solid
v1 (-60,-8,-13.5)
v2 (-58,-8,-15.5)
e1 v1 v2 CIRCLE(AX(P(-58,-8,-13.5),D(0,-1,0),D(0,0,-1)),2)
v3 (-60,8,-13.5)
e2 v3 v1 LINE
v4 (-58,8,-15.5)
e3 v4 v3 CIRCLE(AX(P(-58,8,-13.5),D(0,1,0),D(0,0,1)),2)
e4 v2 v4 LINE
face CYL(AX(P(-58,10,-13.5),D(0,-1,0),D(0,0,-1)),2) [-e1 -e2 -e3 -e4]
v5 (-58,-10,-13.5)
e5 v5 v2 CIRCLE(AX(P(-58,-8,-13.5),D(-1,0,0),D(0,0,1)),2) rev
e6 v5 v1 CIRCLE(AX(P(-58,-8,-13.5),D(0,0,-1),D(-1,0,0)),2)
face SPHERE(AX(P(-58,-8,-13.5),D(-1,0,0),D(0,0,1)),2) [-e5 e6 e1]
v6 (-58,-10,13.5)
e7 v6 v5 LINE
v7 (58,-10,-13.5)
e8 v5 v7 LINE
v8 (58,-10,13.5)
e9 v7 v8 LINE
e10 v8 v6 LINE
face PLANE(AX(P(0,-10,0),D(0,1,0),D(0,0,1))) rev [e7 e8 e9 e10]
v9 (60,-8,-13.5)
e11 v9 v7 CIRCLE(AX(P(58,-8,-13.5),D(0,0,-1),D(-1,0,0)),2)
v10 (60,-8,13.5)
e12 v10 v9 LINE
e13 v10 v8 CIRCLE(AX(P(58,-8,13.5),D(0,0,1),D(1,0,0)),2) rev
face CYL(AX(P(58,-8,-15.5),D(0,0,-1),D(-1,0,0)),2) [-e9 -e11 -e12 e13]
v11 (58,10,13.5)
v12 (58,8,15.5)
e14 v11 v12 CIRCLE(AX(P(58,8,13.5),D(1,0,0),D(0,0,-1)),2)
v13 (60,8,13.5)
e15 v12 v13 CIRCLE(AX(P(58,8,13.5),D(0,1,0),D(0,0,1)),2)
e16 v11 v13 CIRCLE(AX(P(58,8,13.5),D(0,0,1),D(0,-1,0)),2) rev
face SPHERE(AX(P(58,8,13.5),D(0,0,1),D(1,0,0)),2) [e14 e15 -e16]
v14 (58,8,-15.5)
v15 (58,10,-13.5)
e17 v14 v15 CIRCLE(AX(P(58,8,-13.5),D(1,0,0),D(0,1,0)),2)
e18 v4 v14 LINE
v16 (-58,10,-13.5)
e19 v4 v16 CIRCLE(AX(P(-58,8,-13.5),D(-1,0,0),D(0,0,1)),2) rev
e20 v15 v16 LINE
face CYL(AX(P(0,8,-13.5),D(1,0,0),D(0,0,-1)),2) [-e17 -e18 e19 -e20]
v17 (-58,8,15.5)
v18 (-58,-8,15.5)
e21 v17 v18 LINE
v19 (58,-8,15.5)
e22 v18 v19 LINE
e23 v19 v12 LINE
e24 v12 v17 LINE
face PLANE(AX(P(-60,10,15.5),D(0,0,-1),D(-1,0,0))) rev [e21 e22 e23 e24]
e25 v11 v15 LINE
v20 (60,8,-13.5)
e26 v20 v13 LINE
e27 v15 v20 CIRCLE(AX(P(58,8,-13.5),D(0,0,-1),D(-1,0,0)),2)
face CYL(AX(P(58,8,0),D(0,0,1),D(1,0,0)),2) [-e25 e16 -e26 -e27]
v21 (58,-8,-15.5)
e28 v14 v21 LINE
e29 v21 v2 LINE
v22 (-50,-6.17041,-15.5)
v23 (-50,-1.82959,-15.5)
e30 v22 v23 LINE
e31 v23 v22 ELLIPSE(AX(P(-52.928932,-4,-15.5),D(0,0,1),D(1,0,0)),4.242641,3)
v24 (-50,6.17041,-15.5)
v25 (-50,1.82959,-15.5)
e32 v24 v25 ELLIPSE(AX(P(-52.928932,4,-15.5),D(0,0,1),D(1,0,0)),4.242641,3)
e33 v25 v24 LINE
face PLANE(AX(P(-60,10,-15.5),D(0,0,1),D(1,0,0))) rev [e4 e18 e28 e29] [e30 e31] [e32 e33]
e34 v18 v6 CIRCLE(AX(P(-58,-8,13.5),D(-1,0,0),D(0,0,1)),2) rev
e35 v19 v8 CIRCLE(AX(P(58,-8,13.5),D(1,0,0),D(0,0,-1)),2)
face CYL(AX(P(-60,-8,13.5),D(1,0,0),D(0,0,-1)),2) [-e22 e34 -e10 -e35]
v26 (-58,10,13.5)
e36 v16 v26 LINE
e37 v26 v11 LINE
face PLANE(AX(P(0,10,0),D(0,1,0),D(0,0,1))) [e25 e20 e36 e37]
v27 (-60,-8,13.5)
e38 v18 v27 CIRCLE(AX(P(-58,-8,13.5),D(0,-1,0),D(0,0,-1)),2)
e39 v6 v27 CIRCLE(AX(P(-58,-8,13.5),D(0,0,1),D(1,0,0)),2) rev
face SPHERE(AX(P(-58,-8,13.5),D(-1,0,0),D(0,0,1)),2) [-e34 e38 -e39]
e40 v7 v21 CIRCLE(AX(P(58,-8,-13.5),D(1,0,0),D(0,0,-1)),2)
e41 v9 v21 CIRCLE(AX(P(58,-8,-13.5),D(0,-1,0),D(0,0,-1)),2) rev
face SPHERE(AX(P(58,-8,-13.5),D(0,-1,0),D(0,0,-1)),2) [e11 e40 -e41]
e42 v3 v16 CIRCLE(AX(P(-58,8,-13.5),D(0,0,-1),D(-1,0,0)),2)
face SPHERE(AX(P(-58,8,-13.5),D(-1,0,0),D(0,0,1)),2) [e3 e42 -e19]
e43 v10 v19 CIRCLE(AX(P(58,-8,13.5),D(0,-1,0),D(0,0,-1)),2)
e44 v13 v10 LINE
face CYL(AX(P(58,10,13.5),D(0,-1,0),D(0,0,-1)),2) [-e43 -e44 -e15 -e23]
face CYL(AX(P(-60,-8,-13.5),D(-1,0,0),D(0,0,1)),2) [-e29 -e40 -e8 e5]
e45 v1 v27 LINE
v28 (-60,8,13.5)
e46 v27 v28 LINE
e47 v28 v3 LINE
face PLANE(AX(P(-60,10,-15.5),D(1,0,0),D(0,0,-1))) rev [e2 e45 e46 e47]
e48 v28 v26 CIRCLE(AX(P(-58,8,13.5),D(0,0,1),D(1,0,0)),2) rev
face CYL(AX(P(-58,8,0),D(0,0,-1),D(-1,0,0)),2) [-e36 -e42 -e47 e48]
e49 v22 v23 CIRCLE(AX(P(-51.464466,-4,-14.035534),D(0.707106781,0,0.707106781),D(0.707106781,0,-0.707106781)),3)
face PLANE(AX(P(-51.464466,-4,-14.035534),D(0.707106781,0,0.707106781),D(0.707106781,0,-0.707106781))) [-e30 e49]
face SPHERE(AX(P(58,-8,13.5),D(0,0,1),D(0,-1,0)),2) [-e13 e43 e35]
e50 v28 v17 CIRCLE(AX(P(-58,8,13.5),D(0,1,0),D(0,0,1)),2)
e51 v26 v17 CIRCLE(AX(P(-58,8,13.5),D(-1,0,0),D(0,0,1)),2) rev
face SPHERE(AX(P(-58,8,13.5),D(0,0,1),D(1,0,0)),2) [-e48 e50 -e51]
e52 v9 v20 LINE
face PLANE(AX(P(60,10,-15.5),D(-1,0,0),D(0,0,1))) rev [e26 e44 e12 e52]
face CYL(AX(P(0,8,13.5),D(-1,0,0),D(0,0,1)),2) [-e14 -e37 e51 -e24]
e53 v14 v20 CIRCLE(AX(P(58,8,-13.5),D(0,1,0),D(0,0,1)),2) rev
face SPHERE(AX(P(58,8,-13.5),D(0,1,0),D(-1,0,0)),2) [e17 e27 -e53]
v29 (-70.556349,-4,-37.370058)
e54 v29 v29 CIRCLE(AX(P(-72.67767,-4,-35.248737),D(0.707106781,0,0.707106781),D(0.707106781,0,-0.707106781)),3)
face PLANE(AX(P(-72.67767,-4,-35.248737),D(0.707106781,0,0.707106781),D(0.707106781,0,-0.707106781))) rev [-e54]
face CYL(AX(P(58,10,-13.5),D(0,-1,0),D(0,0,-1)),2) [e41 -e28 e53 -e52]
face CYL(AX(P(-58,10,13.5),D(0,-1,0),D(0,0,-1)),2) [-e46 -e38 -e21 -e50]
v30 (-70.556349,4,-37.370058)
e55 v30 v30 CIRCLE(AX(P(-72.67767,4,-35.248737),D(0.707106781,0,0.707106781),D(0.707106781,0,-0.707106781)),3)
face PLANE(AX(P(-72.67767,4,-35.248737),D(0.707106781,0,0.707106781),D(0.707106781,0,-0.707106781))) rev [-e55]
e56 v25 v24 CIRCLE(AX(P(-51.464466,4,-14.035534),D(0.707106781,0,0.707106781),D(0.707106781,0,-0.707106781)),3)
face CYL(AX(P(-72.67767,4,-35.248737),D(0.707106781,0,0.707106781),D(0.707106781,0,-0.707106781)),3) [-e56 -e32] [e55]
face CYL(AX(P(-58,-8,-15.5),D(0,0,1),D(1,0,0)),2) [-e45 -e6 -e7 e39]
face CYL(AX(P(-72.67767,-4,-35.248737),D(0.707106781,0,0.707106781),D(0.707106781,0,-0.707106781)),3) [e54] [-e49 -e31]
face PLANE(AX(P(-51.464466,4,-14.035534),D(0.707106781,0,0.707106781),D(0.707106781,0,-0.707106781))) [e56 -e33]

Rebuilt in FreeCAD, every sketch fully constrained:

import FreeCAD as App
import Part
import Sketcher

V = App.Vector
Q = App.Units.Quantity


def edges_at(feature, points):
    """Names of the edges that pass closest to the given points."""
    edges = feature.Shape.Edges
    near = lambda p: min(range(len(edges)), key=lambda i: edges[i].distToShape(Part.Vertex(*p))[0])
    return sorted({f"Edge{near(p) + 1}" for p in points})

doc = App.newDocument("Part")
body = doc.addObject("PartDesign::Body", "Body")

# Sketch on XZ plane
sketch1 = body.newObject("Sketcher::SketchObject", "Sketch")
sketch1.AttachmentSupport = (doc.getObject("XZ_Plane"), [""])
sketch1.MapMode = "FlatFace"
sketch1.addGeometry([
    Part.LineSegment(V(-60, -16, 0), V(-60, 16, 0)),
    Part.LineSegment(V(-60, 16, 0), V(60, 16, 0)),
    Part.LineSegment(V(60, 16, 0), V(60, -16, 0)),
    Part.LineSegment(V(60, -16, 0), V(-60, -16, 0)),
], False)
sketch1.addConstraint([
    Sketcher.Constraint("Coincident", 0, 2, 1, 1),
    Sketcher.Constraint("Coincident", 1, 2, 2, 1),
    Sketcher.Constraint("Coincident", 2, 2, 3, 1),
    Sketcher.Constraint("Coincident", 3, 2, 0, 1),
    Sketcher.Constraint("Vertical", 0),
    Sketcher.Constraint("Horizontal", 1),
    Sketcher.Constraint("Vertical", 2),
    Sketcher.Constraint("Horizontal", 3),
    Sketcher.Constraint("Symmetric", 0, 2, 2, 2, -1, 1),
    Sketcher.Constraint("DistanceX", 1, 1, 1, 2, Q("120 mm")),
    Sketcher.Constraint("DistanceY", 0, 1, 0, 2, Q("31 mm")),
])
pad1 = body.newObject("PartDesign::Pad", "Pad")
pad1.Profile = sketch1
pad1.Length = 20
pad1.Midplane = True

# Sketch on an angled plane
sketch2 = body.newObject("Sketcher::SketchObject", "Sketch001")
sketch2.Placement = App.Placement(V(-32.75, 0, -32.75), App.Rotation(V(0.707106781, 0, -0.707106781), V(0, 0.999999999, 0), V(0.707106781, 0, 0.707106781), "ZXY"))
sketch2.addGeometry([
    Part.Circle(V(-26.5, 4, 0), V(0, 0, 1), 3),
    Part.Circle(V(-26.5, -4, 0), V(0, 0, 1), 3),
], False)
sketch2.addConstraint([
    Sketcher.Constraint("Equal", 0, 1),
    Sketcher.Constraint("Symmetric", 0, 3, 1, 3, -1),
    Sketcher.Constraint("Diameter", 0, Q("6 mm")),
    Sketcher.Constraint("DistanceY", -1, 1, 0, 3, Q("4 mm")),
    Sketcher.Constraint("DistanceX", 0, 3, -1, 1, Q("26.466252 mm")),
])
pad2 = body.newObject("PartDesign::Pad", "Pad001")
pad2.Profile = sketch2
pad2.Length = 30
pad2.Reversed = True
doc.recompute()

fillet = body.newObject("PartDesign::Fillet", "Fillet")
fillet.Base = (pad2, edges_at(pad2, [
    (-60, 10, 0),
    (0, 10, 15.5),
    (60, 10, 0),
    (0, -10, 15.5),
    (-60, -10, 0),
    (0, -10, -15.5),
    (60, -10, 0),
    (60, 0, 15.5),
    (-60, 0, 15.5),
    (-60, 0, -15.5),
    (60, 0, -15.5),
    (0, 10, -15.5),
]))
fillet.Radius = 2

doc.recompute()
